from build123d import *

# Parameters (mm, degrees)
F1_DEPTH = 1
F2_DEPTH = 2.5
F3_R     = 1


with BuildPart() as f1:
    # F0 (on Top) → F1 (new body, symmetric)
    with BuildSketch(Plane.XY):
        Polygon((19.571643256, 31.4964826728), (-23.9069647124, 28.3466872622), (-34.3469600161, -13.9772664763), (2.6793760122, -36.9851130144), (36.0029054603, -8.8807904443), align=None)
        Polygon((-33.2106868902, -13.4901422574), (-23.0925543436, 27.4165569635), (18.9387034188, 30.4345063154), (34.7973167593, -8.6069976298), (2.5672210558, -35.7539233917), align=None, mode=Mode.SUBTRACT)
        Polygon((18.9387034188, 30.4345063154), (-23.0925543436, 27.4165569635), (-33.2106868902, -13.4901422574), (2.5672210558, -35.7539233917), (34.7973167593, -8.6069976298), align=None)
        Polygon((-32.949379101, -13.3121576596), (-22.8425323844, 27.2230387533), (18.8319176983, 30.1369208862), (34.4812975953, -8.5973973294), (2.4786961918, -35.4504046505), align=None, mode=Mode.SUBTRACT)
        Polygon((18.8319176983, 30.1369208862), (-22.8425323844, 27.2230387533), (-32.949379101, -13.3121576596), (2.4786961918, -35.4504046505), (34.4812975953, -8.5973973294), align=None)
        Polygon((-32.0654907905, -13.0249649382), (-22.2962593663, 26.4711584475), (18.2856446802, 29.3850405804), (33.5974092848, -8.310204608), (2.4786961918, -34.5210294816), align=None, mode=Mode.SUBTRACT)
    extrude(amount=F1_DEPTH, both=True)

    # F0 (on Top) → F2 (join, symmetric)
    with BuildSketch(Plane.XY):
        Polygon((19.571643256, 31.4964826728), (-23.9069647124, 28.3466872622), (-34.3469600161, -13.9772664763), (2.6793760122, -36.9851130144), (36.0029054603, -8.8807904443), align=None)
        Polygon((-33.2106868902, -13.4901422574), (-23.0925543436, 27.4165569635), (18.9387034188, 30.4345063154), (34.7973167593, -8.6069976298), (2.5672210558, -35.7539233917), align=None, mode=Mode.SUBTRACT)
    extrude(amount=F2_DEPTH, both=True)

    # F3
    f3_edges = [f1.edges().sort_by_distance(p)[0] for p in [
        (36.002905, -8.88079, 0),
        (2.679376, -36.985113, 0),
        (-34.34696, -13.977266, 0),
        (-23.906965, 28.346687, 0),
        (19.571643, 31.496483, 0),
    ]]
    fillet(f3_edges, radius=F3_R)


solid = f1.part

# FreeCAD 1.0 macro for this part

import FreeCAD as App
import Part
import Sketcher


def edges_at(feature, points):
    """Names of the edges that pass closest to the given points."""
    edges = feature.Shape.Edges
    near = lambda p: min(range(len(edges)), key=lambda i: edges[i].distToShape(Part.Vertex(*p))[0])
    return sorted({f"Edge{near(p) + 1}" for p in points})

doc = App.newDocument("Part")
body = doc.addObject("PartDesign::Body", "Body")

sketch1 = body.newObject("Sketcher::SketchObject", "Sketch")
sketch1.AttachmentSupport = (doc.getObject("XY_Plane"), [""])
sketch1.MapMode = "FlatFace"
sketch1.addGeometry([
    Part.LineSegment(App.Vector(20, 31, 0), App.Vector(-24, 28, 0)),
    Part.LineSegment(App.Vector(-24, 28, 0), App.Vector(-34, -14, 0)),
    Part.LineSegment(App.Vector(-34, -14, 0), App.Vector(3, -37, 0)),
    Part.LineSegment(App.Vector(3, -37, 0), App.Vector(36, -9, 0)),
    Part.LineSegment(App.Vector(36, -9, 0), App.Vector(20, 31, 0)),
    Part.LineSegment(App.Vector(2, -35, 0), App.Vector(-32, -13, 0)),
    Part.LineSegment(App.Vector(-32, -13, 0), App.Vector(-22, 26, 0)),
    Part.LineSegment(App.Vector(-22, 26, 0), App.Vector(18, 29, 0)),
    Part.LineSegment(App.Vector(18, 29, 0), App.Vector(34, -8, 0)),
    Part.LineSegment(App.Vector(34, -8, 0), App.Vector(2, -35, 0)),
], False)
sketch1.addConstraint([
    Sketcher.Constraint("Coincident", 0, 2, 1, 1),
    Sketcher.Constraint("Coincident", 1, 2, 2, 1),
    Sketcher.Constraint("Coincident", 2, 2, 3, 1),
    Sketcher.Constraint("Coincident", 3, 2, 4, 1),
    Sketcher.Constraint("Coincident", 4, 2, 0, 1),
    Sketcher.Constraint("Coincident", 5, 2, 6, 1),
    Sketcher.Constraint("Coincident", 6, 2, 7, 1),
    Sketcher.Constraint("Coincident", 7, 2, 8, 1),
    Sketcher.Constraint("Coincident", 8, 2, 9, 1),
    Sketcher.Constraint("Coincident", 9, 2, 5, 1),
    Sketcher.Constraint("Equal", 0, 1),
    Sketcher.Constraint("Equal", 1, 2),
    Sketcher.Constraint("Equal", 2, 3),
    Sketcher.Constraint("Equal", 3, 4),
    Sketcher.Constraint("Equal", 5, 6),
    Sketcher.Constraint("Equal", 6, 7),
    Sketcher.Constraint("Equal", 7, 8),
    Sketcher.Constraint("Equal", 8, 9),
    Sketcher.Constraint("DistanceX", 7, 2, 4, 2, 1.285999),
    Sketcher.Constraint("DistanceY", 2, 2, 0, 2, 65.3318),
    Sketcher.Constraint("DistanceY", 1, 2, 5, 2, 0.952302),
    Sketcher.Constraint("DistanceX", 1, 2, 6, 2, 12.050701),
    Sketcher.Constraint("Distance", 0, 43.592552),
    Sketcher.Constraint("Distance", 5, 40.686382),
    Sketcher.Constraint("DistanceX", 1, 2, -1, 1, 34.34696),
    Sketcher.Constraint("DistanceY", 3, 2, -1, 1, 8.88079),
    Sketcher.Constraint("DistanceX", 5, 2, -1, 1, 32.065491),
    Sketcher.Constraint("DistanceY", -1, 1, 6, 2, 26.471158),
    Sketcher.Constraint("DistanceY", -1, 1, 7, 2, 29.385041),
    Sketcher.Constraint("DistanceX", -1, 1, 8, 2, 33.597409),
])
pad1 = body.newObject("PartDesign::Pad", "Pad")
pad1.Profile = sketch1
pad1.Length = 2
pad1.Midplane = True

sketch2 = body.newObject("Sketcher::SketchObject", "Sketch001")
sketch2.AttachmentSupport = (doc.getObject("XY_Plane"), [""])
sketch2.MapMode = "FlatFace"
sketch2.addGeometry([
    Part.LineSegment(App.Vector(20, 31, 0), App.Vector(-24, 28, 0)),
    Part.LineSegment(App.Vector(-24, 28, 0), App.Vector(-34, -14, 0)),
    Part.LineSegment(App.Vector(-34, -14, 0), App.Vector(3, -37, 0)),
    Part.LineSegment(App.Vector(3, -37, 0), App.Vector(36, -9, 0)),
    Part.LineSegment(App.Vector(36, -9, 0), App.Vector(20, 31, 0)),
    Part.LineSegment(App.Vector(3, -36, 0), App.Vector(-33, -13, 0)),
    Part.LineSegment(App.Vector(-33, -13, 0), App.Vector(-23, 27, 0)),
    Part.LineSegment(App.Vector(-23, 27, 0), App.Vector(19, 30, 0)),
    Part.LineSegment(App.Vector(19, 30, 0), App.Vector(35, -9, 0)),
    Part.LineSegment(App.Vector(35, -9, 0), App.Vector(3, -36, 0)),
], False)
sketch2.addConstraint([
    Sketcher.Constraint("Coincident", 0, 2, 1, 1),
    Sketcher.Constraint("Coincident", 1, 2, 2, 1),
    Sketcher.Constraint("Coincident", 2, 2, 3, 1),
    Sketcher.Constraint("Coincident", 3, 2, 4, 1),
    Sketcher.Constraint("Coincident", 4, 2, 0, 1),
    Sketcher.Constraint("Coincident", 5, 2, 6, 1),
    Sketcher.Constraint("Coincident", 6, 2, 7, 1),
    Sketcher.Constraint("Coincident", 7, 2, 8, 1),
    Sketcher.Constraint("Coincident", 8, 2, 9, 1),
    Sketcher.Constraint("Coincident", 9, 2, 5, 1),
    Sketcher.Constraint("Equal", 0, 1),
    Sketcher.Constraint("Equal", 1, 2),
    Sketcher.Constraint("Equal", 2, 3),
    Sketcher.Constraint("Equal", 3, 4),
    Sketcher.Constraint("Equal", 5, 6),
    Sketcher.Constraint("Equal", 6, 7),
    Sketcher.Constraint("Equal", 7, 8),
    Sketcher.Constraint("Equal", 8, 9),
    Sketcher.Constraint("DistanceY", 2, 2, 0, 2, 65.3318),
    Sketcher.Constraint("DistanceY", 5, 2, 6, 2, 40.906699),
    Sketcher.Constraint("Distance", 0, 43.592552),
    Sketcher.Constraint("DistanceX", 1, 2, -1, 1, 34.34696),
    Sketcher.Constraint("DistanceY", 3, 2, -1, 1, 8.88079),
    Sketcher.Constraint("DistanceX", -1, 1, 9, 2, 2.567221),
    Sketcher.Constraint("DistanceX", 0, 2, 2, 2, 26.586341),
    Sketcher.Constraint("DistanceX", 2, 2, 3, 2, 33.323529),
    Sketcher.Constraint("DistanceY", 5, 2, 0, 2, 41.83683),
    Sketcher.Constraint("DistanceX", 5, 2, 4, 2, 52.78233),
    Sketcher.Constraint("DistanceX", 0, 2, 6, 2, 0.81441),
    Sketcher.Constraint("DistanceX", 7, 2, 4, 2, 0.63294),
])
pad2 = body.newObject("PartDesign::Pad", "Pad001")
pad2.Profile = sketch2
pad2.Length = 5
pad2.Midplane = True
doc.recompute()

fillet = body.newObject("PartDesign::Fillet", "Fillet")
fillet.Base = (pad2, edges_at(pad2, [
    (36.003, -8.881, 0),
    (2.679, -36.985, 0),
    (-34.347, -13.977, 0),
    (-23.907, 28.347, 0),
    (19.572, 31.496, 0),
]))
fillet.Radius = 1

doc.recompute()
